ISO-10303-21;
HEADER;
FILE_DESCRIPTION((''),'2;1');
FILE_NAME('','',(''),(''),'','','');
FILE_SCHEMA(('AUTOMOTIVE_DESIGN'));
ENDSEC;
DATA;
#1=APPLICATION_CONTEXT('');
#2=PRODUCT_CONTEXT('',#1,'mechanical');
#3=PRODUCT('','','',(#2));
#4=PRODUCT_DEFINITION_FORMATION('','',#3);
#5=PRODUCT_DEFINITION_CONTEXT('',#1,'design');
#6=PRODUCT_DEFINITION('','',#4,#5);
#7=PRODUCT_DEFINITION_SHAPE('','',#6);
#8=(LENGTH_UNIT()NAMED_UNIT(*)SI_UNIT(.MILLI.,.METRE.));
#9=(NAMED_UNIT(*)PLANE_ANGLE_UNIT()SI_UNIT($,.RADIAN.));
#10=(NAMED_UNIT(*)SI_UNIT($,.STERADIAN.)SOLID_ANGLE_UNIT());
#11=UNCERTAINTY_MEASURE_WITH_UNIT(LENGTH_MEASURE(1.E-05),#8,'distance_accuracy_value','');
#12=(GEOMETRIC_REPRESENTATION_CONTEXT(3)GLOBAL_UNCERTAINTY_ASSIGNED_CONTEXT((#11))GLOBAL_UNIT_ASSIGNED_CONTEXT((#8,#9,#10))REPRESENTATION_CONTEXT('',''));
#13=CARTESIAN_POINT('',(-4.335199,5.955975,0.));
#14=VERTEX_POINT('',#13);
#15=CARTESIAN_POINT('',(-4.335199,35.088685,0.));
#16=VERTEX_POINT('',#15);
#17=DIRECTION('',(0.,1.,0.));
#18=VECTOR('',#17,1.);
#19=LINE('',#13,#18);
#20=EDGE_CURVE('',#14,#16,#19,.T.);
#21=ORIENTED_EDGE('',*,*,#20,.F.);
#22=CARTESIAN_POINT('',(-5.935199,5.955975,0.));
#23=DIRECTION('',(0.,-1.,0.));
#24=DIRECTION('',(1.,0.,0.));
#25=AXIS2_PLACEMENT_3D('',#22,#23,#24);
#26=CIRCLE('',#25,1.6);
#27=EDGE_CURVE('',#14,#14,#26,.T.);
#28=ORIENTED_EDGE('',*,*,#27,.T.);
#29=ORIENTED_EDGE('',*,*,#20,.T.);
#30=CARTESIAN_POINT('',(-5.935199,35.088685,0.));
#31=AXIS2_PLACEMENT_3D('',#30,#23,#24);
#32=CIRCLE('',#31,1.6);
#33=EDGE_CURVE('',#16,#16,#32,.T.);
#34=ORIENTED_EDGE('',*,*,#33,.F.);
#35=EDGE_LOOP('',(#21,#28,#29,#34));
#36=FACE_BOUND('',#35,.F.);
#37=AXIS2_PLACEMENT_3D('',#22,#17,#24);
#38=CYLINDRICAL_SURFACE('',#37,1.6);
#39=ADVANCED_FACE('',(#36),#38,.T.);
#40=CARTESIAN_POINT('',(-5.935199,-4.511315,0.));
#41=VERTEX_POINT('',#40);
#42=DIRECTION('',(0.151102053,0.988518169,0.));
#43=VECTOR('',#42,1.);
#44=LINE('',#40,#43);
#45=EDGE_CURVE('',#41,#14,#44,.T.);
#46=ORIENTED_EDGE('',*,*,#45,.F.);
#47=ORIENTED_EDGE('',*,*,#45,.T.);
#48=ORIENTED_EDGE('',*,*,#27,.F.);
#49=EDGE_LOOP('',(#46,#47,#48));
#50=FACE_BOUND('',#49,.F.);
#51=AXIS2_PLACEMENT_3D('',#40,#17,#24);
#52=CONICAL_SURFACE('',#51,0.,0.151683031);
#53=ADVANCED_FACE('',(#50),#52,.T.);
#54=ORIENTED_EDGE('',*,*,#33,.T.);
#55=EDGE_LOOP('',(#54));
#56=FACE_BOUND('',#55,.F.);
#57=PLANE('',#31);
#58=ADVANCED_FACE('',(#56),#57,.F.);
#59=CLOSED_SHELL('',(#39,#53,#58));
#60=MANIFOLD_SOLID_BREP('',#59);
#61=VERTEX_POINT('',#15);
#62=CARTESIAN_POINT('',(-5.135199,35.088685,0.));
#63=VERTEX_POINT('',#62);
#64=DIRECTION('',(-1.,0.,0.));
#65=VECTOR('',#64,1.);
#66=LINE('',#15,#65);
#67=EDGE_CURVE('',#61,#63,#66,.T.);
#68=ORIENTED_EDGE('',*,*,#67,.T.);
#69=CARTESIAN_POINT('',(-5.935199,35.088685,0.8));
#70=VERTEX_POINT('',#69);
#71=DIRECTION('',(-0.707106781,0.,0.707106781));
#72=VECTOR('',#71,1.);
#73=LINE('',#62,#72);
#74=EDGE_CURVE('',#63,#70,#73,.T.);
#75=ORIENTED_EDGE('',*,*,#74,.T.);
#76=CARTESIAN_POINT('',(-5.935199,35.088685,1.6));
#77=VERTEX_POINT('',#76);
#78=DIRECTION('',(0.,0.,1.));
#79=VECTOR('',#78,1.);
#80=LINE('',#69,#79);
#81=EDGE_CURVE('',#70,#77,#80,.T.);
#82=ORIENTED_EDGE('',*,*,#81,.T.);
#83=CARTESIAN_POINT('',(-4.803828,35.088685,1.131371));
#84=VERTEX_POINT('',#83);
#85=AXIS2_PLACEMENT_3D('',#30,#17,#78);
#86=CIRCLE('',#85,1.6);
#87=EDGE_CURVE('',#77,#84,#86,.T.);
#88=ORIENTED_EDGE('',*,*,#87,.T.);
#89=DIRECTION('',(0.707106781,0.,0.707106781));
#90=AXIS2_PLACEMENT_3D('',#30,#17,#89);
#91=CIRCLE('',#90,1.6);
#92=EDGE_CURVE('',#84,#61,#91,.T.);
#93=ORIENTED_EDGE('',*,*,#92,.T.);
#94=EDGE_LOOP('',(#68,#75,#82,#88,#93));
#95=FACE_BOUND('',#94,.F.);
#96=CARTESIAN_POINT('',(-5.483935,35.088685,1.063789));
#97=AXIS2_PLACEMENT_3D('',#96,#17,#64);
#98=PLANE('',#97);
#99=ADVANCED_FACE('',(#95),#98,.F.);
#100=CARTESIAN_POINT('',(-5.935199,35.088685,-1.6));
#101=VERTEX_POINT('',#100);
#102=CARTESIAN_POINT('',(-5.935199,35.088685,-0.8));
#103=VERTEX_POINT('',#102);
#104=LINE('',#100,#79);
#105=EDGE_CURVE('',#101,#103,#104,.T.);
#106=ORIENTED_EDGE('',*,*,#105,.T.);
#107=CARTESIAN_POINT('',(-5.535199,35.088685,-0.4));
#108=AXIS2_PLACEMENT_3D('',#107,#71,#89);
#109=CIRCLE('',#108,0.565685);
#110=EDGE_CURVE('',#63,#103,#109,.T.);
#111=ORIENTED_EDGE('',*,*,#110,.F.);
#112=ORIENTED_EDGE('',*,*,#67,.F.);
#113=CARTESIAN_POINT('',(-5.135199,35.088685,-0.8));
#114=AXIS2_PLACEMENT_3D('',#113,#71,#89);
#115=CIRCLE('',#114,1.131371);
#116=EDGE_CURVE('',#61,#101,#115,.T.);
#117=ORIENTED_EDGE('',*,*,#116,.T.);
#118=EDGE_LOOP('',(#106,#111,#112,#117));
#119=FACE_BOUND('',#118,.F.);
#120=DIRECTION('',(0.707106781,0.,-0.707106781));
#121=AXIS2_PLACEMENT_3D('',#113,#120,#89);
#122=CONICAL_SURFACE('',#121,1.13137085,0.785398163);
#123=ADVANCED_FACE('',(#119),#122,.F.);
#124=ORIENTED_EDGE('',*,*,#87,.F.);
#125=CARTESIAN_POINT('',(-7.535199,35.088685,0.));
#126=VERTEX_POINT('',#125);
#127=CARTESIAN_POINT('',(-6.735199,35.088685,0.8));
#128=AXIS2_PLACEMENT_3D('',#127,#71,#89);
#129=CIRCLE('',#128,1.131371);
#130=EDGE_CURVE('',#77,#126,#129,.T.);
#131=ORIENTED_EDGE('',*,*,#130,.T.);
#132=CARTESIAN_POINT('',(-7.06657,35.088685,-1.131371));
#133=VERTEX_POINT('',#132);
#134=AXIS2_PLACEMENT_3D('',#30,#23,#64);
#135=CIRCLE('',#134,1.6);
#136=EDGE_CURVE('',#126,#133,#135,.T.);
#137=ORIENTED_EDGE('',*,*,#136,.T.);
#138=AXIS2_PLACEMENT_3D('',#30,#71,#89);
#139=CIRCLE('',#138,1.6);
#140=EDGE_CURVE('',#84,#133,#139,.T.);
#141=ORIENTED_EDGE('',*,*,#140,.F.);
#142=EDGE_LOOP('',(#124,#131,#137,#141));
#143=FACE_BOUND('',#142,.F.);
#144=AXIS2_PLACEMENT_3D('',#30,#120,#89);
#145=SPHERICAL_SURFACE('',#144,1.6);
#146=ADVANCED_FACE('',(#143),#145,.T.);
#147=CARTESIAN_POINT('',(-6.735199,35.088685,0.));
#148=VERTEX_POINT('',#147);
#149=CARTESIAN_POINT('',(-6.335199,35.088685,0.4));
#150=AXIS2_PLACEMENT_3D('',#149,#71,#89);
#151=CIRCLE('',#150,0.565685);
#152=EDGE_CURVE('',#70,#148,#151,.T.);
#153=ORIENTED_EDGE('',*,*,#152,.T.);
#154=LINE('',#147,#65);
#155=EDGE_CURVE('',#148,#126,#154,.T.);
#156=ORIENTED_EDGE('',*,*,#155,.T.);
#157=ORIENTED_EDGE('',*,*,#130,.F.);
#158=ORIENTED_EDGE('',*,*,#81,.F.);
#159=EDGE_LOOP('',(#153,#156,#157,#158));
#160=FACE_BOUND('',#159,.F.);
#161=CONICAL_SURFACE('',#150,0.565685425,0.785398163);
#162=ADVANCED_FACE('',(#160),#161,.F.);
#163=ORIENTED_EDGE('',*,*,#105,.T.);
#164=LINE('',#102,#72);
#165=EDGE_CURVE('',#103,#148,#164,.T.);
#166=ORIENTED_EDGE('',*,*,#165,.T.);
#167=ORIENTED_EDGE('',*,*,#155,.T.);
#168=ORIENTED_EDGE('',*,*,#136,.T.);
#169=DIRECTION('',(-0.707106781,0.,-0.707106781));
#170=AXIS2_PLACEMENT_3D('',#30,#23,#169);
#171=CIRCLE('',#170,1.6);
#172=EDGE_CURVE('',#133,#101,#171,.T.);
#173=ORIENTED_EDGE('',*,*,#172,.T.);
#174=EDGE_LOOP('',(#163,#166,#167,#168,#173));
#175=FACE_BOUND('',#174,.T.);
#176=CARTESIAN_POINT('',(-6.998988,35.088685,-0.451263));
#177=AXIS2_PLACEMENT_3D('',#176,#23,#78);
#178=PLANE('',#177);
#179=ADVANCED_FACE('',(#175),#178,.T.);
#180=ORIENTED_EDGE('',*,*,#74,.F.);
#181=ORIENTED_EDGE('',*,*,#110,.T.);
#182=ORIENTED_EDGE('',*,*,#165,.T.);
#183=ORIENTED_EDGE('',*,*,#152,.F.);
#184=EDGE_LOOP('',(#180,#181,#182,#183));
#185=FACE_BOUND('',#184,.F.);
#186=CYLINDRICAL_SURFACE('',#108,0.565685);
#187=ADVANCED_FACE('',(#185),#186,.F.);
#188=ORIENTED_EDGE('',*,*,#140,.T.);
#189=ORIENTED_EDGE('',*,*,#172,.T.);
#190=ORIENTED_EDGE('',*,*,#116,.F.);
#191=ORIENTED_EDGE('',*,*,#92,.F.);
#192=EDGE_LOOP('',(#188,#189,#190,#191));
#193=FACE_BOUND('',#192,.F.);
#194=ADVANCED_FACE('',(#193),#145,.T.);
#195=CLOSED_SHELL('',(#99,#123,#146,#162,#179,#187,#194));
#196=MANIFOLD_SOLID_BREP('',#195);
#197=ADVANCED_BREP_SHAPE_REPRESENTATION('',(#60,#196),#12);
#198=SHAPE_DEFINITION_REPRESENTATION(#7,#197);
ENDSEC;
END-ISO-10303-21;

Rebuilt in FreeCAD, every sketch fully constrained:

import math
import FreeCAD as App
import Part
import Sketcher
from FreeCAD import Vector
Q = App.Units.Quantity


def add_polygon(sketch, points):
    """Adds a closed chain of lines whose ends are joined by coincident constraints."""
    first, n = sketch.GeometryCount, len(points)
    for a, b in zip(points, points[1:] + points[:1]):
        sketch.addGeometry(Part.LineSegment(App.Vector(*a, 0), App.Vector(*b, 0)), False)
    for i in range(n):
        sketch.addConstraint(Sketcher.Constraint("Coincident", first + i, 2, first + (i + 1) % n, 1))

doc = App.newDocument("Part")
body = doc.addObject("PartDesign::Body", "Body")

sketch1 = body.newObject("Sketcher::SketchObject", "Sketch")
sketch1.AttachmentSupport = (doc.getObject("XY_Plane"), [""])
sketch1.MapMode = "FlatFace"
add_polygon(sketch1, [(-4.3, 6), (-4.3, 35.1), (-5.9, 35.1), (-5.9, -4.5)])
sketch1.addGeometry(Part.LineSegment(Vector(-5.9, 35.1, 0), Vector(-5.9, -4.5, 0)), True)
sketch1.addConstraint(Sketcher.Constraint("Vertical", 0))
sketch1.addConstraint(Sketcher.Constraint("Horizontal", 1))
sketch1.addConstraint(Sketcher.Constraint("Vertical", 2))
sketch1.addConstraint(Sketcher.Constraint("Vertical", 4))
sketch1.addConstraint(Sketcher.Constraint("Coincident", 4, 1, 1, 2))
sketch1.addConstraint(Sketcher.Constraint("Equal", 2, 4))
sketch1.addConstraint(Sketcher.Constraint("DistanceX", 1, 2, 1, 1, Q("1.6 mm")))
sketch1.addConstraint(Sketcher.Constraint("DistanceY", 2, 2, 2, 1, Q("39.6 mm")))
sketch1.addConstraint(Sketcher.Constraint("DistanceY", 0, 1, 0, 2, Q("29.13271 mm")))
sketch1.addConstraint(Sketcher.Constraint("DistanceX", 0, 2, -1, 1, Q("4.335199 mm")))
sketch1.addConstraint(Sketcher.Constraint("DistanceY", -1, 1, 0, 2, Q("35.088685 mm")))
revolution = body.newObject("PartDesign::Revolution", "Revolution")
revolution.Profile = sketch1
revolution.ReferenceAxis = (sketch1, ["Axis0"])
revolution.Angle = 360
body2 = doc.addObject("PartDesign::Body", "Body001")

sketch2 = body2.newObject("Sketcher::SketchObject", "Sketch001")
sketch2.AttachmentSupport = (doc.getObject("XZ_Plane001"), [""])
sketch2.MapMode = "FlatFace"
sketch2.AttachmentOffset = App.Placement(Vector(0, 0, -35.088685), App.Rotation())
sketch2.addGeometry(Part.ArcOfCircle(Part.Circle(Vector(-5.9, 0, 0), Vector(0, 0, 1), 1.6), math.radians(45), math.radians(90)), False)
sketch2.addGeometry(Part.ArcOfCircle(Part.Circle(Vector(-5.9, 0, 0), Vector(0, 0, 1), 1.6), math.radians(0), math.radians(45)), False)
sketch2.addGeometry(Part.LineSegment(Vector(-4.3, 0, 0), Vector(-5.1, 0, 0)), False)
sketch2.addGeometry(Part.LineSegment(Vector(-5.1, 0, 0), Vector(-5.9, 0.8, 0)), False)
sketch2.addGeometry(Part.LineSegment(Vector(-5.9, 0.8, 0), Vector(-5.9, 1.6, 0)), False)
sketch2.addGeometry(Part.LineSegment(Vector(-5.1, -0.8, 0), Vector(-6.7, 0.8, 0)), True)
sketch2.addConstraint(Sketcher.Constraint("Tangent", 0, 1, 1, 2))
sketch2.addConstraint(Sketcher.Constraint("Coincident", 1, 1, 2, 1))
sketch2.addConstraint(Sketcher.Constraint("Coincident", 2, 2, 3, 1))
sketch2.addConstraint(Sketcher.Constraint("Coincident", 3, 2, 4, 1))
sketch2.addConstraint(Sketcher.Constraint("Coincident", 4, 2, 0, 2))
sketch2.addConstraint(Sketcher.Constraint("Horizontal", 2))
sketch2.addConstraint(Sketcher.Constraint("Vertical", 4))
sketch2.addConstraint(Sketcher.Constraint("Equal", 0, 1))
sketch2.addConstraint(Sketcher.Constraint("PointOnObject", 0, 3, -1))
sketch2.addConstraint(Sketcher.Constraint("PointOnObject", 1, 1, -1))
sketch2.addConstraint(Sketcher.Constraint("Parallel", 3, 5))
sketch2.addConstraint(Sketcher.Constraint("Horizontal", 3, 2, 5, 2))
sketch2.addConstraint(Sketcher.Constraint("Vertical", 1, 3, 3, 2))
sketch2.addConstraint(Sketcher.Constraint("Vertical", 2, 2, 5, 1))
sketch2.addConstraint(Sketcher.Constraint("Equal", 2, 4))
sketch2.addConstraint(Sketcher.Constraint("Radius", 0, Q("1.6 mm")))
sketch2.addConstraint(Sketcher.Constraint("DistanceX", 2, 2, 2, 1, Q("0.8 mm")))
sketch2.addConstraint(Sketcher.Constraint("DistanceY", 5, 1, -1, 1, Q("0.8 mm")))
sketch2.addConstraint(Sketcher.Constraint("DistanceX", 0, 3, -1, 1, Q("5.935199 mm")))
sketch2.addConstraint(Sketcher.Constraint("DistanceY", -1, 1, 0, 1, Q("1.131371 mm")))
revolution2 = body2.newObject("PartDesign::Revolution", "Revolution001")
revolution2.Profile = sketch2
revolution2.ReferenceAxis = (sketch2, ["Axis0"])
revolution2.Angle = 180

doc.recompute()
